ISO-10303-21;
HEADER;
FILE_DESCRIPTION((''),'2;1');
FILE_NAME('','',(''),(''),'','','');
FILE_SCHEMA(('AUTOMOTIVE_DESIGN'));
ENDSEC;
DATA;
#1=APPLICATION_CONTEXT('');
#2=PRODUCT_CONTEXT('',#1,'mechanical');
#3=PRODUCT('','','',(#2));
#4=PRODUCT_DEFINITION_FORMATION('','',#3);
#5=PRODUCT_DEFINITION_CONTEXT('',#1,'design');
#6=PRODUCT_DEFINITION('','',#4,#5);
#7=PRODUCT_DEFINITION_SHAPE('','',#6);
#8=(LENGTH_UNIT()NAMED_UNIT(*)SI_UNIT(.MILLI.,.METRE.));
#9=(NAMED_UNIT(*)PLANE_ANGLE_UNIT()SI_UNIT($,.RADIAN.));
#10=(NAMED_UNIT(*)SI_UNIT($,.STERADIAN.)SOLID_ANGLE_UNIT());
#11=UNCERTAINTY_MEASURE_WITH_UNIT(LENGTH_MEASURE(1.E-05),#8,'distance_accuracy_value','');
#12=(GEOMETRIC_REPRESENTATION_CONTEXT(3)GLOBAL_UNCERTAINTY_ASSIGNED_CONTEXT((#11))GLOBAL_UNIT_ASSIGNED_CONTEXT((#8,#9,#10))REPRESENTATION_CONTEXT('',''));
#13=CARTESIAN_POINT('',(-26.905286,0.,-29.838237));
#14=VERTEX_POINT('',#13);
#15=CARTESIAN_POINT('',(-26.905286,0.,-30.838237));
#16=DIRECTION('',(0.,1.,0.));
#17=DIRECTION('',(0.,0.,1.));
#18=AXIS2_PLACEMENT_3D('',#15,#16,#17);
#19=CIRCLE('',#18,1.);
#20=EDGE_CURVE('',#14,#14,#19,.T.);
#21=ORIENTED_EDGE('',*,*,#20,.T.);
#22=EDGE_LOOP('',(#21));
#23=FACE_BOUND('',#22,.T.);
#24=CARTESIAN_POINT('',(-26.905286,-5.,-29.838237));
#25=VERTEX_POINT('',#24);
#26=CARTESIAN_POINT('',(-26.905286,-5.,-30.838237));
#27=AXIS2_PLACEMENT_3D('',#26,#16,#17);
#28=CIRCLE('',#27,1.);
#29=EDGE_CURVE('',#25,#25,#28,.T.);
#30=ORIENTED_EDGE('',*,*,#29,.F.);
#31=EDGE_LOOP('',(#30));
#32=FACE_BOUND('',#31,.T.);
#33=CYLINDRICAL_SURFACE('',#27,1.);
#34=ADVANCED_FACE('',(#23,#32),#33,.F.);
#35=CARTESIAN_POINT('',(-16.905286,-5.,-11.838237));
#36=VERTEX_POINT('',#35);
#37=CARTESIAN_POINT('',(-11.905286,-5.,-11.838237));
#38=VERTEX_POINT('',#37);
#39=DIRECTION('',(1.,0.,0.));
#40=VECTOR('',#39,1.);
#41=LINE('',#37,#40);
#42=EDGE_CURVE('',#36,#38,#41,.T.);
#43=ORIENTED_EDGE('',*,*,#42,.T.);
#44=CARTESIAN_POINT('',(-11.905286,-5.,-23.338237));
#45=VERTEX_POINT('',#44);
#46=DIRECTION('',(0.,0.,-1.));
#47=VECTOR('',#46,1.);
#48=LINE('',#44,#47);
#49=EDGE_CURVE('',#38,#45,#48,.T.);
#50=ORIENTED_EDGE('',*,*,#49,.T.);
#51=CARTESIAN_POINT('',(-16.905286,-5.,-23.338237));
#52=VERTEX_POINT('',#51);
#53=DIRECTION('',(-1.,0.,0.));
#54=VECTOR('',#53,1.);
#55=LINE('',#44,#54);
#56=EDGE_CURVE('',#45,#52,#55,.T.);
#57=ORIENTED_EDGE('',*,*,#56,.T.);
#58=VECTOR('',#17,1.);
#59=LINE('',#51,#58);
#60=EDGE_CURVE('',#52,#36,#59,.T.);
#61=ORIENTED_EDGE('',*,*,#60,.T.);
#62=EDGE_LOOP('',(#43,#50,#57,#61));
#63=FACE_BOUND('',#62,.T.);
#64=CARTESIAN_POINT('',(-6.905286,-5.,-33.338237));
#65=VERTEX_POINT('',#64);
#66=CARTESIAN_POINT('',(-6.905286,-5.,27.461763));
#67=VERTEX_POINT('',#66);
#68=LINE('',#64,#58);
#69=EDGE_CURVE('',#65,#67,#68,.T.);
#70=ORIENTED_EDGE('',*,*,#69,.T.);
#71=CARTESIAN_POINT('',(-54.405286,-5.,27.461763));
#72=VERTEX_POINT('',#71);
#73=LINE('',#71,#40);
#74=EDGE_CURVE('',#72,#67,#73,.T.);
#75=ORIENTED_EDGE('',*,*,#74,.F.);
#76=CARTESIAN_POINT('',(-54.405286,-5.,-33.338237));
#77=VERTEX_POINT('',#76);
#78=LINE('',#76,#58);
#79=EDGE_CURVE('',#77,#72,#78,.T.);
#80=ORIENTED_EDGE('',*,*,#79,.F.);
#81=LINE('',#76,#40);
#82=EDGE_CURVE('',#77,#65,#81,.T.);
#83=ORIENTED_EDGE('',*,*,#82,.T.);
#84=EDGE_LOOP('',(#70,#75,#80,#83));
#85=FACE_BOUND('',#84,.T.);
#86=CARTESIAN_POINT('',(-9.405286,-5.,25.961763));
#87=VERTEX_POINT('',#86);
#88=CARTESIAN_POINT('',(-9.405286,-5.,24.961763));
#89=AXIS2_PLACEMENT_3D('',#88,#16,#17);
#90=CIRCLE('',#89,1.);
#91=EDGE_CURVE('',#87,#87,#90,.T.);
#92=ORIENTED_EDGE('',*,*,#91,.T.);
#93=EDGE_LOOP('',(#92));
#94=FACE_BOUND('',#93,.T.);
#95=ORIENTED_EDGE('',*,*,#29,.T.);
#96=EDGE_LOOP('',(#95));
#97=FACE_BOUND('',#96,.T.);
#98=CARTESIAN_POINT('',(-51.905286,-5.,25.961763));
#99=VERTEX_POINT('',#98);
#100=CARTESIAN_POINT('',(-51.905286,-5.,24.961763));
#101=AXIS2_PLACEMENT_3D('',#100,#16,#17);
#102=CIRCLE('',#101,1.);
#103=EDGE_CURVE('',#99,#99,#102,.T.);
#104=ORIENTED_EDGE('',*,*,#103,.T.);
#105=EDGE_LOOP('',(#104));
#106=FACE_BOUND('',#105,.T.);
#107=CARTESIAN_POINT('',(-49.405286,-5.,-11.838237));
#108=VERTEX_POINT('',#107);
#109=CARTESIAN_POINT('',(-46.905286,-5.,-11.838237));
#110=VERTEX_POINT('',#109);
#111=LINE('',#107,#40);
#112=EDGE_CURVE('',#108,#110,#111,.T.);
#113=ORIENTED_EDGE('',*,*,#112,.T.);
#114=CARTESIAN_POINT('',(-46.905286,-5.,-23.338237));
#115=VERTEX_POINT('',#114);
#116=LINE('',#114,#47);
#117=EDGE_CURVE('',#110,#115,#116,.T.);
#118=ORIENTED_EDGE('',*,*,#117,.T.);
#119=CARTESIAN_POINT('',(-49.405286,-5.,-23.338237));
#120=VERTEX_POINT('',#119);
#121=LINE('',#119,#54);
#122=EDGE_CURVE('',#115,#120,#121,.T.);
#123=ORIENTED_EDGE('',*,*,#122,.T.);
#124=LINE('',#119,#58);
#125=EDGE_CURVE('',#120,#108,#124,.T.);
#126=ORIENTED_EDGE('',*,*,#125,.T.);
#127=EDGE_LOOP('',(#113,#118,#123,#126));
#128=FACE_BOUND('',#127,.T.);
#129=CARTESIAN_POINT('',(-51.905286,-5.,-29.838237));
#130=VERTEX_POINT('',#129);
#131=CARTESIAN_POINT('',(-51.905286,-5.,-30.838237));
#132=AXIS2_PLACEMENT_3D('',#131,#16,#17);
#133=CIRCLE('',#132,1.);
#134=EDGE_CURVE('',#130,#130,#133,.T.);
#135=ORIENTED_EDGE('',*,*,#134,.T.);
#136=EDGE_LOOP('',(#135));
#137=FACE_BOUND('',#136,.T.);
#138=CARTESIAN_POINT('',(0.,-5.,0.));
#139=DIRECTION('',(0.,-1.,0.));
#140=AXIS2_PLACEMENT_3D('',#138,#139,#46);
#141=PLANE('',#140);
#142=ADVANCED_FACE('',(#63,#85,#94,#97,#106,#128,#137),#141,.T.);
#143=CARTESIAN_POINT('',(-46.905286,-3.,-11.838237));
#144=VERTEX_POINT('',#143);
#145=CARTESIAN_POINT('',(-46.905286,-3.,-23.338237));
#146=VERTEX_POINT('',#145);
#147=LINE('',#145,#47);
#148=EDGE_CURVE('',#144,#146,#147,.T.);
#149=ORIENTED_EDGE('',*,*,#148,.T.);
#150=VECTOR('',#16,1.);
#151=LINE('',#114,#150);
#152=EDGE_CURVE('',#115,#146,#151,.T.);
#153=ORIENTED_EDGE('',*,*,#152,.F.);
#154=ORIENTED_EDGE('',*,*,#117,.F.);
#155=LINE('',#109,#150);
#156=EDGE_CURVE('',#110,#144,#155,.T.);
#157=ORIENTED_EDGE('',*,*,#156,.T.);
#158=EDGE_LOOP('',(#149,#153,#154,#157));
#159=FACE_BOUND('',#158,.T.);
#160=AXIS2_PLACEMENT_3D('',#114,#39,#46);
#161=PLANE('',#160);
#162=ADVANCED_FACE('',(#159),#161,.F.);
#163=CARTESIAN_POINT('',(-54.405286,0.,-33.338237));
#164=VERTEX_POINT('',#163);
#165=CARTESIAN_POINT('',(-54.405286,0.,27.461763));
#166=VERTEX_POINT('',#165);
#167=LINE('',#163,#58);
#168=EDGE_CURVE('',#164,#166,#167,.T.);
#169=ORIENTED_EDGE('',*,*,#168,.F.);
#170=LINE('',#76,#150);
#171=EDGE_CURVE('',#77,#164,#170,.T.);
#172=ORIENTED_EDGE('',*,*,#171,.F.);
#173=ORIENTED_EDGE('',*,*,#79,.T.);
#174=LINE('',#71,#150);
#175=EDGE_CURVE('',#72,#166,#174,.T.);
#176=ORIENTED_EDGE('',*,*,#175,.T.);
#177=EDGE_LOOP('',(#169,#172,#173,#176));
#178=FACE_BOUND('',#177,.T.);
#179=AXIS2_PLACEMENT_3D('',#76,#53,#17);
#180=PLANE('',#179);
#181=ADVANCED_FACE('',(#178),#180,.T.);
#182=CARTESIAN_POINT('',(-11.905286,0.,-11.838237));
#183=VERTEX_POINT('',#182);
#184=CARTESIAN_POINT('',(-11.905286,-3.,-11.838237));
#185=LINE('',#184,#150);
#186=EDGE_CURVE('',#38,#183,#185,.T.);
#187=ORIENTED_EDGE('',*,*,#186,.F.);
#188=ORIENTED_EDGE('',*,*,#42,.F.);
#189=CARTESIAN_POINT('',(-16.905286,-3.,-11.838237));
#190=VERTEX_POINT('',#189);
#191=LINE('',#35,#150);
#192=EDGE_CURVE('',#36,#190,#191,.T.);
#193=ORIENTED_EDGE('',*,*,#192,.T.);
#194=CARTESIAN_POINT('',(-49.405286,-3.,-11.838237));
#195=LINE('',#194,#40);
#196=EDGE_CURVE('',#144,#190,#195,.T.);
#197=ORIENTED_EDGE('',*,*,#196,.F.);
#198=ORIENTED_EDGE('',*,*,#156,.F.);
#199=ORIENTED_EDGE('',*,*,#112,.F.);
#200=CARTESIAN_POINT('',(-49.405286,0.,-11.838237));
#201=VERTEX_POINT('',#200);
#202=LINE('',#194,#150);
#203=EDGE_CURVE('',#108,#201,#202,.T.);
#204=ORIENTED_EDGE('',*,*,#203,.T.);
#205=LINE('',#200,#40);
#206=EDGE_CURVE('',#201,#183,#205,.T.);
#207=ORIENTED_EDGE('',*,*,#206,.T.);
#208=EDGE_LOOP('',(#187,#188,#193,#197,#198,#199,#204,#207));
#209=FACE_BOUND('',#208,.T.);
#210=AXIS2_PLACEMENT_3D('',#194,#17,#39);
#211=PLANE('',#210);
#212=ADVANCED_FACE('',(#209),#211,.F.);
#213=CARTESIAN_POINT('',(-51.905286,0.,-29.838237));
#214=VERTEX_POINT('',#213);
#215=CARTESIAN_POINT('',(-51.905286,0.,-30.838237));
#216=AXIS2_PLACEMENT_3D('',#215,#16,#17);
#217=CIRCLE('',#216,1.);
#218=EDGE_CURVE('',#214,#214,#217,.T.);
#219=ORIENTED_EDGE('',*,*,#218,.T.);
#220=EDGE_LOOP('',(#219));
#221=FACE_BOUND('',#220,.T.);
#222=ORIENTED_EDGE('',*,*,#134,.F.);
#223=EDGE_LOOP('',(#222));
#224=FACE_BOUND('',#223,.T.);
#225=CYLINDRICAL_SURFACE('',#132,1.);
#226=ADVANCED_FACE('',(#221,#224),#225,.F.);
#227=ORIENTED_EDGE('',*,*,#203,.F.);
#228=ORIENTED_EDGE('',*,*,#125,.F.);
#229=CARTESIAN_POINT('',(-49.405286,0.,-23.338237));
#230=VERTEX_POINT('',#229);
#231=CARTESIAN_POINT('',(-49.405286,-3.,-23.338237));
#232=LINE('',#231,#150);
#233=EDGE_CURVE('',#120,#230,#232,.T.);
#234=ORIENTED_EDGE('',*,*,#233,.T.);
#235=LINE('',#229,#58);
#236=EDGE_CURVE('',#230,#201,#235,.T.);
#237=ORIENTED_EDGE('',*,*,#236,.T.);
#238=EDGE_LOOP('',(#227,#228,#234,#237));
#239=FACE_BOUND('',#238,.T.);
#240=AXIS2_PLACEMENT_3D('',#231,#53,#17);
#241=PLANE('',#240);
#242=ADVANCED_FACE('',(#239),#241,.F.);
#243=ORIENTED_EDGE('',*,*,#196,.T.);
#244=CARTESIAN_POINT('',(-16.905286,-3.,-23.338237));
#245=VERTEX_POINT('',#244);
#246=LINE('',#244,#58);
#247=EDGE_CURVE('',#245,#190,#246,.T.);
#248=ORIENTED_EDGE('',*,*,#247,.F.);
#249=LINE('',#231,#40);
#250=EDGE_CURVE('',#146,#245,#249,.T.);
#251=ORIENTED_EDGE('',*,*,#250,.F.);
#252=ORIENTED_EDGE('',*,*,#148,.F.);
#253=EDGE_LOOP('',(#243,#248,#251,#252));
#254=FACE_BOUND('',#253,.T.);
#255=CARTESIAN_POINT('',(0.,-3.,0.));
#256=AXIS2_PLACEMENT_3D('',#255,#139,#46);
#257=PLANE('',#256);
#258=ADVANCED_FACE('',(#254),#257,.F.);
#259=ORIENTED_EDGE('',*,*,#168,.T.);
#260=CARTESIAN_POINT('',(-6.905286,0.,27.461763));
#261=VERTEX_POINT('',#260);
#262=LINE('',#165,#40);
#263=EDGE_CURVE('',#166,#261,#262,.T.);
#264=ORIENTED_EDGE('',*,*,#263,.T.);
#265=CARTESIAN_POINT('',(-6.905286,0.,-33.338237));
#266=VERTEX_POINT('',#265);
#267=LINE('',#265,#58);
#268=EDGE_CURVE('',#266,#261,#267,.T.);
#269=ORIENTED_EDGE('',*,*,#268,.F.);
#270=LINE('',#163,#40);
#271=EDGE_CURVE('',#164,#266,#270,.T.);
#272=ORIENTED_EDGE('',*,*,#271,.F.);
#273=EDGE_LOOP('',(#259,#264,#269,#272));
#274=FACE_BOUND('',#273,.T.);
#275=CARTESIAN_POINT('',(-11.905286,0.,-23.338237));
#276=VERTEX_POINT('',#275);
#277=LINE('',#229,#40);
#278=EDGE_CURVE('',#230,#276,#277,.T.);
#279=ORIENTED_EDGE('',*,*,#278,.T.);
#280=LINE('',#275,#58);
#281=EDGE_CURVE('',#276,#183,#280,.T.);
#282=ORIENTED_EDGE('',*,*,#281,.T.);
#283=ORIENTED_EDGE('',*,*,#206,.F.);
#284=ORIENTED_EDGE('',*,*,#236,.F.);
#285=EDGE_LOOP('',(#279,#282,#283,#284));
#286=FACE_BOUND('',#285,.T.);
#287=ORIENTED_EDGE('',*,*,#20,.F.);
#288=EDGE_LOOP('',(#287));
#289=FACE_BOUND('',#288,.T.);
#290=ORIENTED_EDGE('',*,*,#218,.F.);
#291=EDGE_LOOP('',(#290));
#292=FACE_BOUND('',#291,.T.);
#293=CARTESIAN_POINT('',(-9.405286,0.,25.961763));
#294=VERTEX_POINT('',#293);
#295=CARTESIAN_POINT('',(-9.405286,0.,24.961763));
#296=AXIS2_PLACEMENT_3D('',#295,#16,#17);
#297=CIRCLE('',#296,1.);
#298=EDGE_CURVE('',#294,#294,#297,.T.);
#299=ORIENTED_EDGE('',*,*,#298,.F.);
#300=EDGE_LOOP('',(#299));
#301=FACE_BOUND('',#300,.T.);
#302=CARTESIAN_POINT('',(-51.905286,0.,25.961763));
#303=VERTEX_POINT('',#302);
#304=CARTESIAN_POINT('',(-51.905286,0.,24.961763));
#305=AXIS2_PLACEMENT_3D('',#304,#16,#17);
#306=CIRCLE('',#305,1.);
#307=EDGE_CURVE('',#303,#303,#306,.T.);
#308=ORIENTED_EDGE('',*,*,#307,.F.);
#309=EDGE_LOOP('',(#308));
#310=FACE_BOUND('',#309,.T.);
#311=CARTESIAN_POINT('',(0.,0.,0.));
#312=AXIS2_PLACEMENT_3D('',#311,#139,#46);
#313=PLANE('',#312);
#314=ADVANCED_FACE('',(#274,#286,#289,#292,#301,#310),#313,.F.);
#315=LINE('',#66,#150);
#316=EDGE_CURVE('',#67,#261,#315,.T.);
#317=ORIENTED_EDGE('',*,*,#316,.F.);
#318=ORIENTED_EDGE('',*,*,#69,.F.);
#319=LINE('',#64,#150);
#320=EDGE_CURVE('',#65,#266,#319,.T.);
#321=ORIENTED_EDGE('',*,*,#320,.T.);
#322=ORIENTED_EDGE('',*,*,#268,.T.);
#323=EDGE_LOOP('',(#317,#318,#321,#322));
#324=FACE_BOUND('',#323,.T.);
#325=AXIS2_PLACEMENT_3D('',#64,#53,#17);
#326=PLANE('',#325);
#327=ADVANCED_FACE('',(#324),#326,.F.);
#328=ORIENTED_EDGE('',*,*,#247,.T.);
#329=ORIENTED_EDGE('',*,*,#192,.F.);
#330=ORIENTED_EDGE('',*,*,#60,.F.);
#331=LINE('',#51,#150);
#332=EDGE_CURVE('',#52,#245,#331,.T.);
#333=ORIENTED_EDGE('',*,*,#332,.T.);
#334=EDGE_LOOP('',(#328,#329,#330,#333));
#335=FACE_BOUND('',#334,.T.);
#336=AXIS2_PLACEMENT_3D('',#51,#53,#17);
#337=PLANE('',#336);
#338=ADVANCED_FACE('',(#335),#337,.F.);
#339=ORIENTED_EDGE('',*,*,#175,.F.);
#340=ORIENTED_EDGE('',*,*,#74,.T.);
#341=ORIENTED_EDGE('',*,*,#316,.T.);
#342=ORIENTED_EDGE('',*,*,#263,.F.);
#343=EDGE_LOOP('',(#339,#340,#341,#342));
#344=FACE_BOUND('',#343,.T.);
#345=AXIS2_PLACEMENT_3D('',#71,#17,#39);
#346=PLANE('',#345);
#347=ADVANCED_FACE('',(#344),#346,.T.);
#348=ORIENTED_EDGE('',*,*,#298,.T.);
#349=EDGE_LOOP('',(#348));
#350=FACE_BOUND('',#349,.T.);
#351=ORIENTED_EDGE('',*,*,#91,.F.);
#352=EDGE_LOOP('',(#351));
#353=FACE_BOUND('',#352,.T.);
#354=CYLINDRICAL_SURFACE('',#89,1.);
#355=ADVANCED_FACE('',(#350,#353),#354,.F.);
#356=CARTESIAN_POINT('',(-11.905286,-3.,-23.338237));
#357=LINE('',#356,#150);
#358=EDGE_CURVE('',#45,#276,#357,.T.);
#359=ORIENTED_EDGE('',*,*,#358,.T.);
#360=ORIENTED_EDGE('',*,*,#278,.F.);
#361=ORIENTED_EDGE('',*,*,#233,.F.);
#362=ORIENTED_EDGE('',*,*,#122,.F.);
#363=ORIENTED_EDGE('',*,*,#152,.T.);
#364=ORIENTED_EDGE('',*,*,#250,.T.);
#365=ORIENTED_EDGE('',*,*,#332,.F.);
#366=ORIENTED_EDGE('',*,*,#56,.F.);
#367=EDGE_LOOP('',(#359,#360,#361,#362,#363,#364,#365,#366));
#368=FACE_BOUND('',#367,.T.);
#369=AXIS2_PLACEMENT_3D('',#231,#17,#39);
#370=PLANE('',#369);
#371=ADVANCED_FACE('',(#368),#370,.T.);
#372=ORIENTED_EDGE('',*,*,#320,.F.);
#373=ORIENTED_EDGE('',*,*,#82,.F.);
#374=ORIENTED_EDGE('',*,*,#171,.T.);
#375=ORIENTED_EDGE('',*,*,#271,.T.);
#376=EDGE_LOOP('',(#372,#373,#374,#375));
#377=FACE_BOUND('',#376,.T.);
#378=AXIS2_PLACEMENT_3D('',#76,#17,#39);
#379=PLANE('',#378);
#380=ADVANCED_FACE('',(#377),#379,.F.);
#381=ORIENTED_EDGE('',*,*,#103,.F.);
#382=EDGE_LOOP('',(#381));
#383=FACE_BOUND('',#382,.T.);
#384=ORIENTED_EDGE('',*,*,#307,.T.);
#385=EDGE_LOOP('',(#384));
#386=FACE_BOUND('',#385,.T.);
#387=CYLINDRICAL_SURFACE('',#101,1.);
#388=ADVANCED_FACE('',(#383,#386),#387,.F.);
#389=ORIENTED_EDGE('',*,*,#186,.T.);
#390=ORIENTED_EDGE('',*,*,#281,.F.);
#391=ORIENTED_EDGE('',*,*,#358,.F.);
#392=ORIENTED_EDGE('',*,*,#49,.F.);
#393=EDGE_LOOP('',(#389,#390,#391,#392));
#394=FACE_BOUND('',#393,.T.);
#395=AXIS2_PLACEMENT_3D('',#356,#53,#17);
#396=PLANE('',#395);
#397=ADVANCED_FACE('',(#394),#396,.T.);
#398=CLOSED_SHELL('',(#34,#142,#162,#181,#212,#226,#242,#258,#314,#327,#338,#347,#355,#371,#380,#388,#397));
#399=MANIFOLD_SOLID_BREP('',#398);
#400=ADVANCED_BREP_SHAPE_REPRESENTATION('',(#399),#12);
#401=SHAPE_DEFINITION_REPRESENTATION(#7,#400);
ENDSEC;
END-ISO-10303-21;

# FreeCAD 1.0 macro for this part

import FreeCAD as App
import Part
import Sketcher
Q = App.Units.Quantity

doc = App.newDocument("Part")
body = doc.addObject("PartDesign::Body", "Body")

# Sketch on XZ plane
sketch1 = body.newObject("Sketcher::SketchObject", "Sketch")
sketch1.AttachmentSupport = (doc.getObject("XZ_Plane"), [""])
sketch1.MapMode = "FlatFace"
sketch1.addGeometry(Part.LineSegment(App.Vector(-54, -33, 0), App.Vector(-54, 27, 0)), False)
sketch1.addGeometry(Part.LineSegment(App.Vector(-54, 27, 0), App.Vector(-7, 27, 0)), False)
sketch1.addGeometry(Part.LineSegment(App.Vector(-7, 27, 0), App.Vector(-7, -33, 0)), False)
sketch1.addGeometry(Part.LineSegment(App.Vector(-7, -33, 0), App.Vector(-54, -33, 0)), False)
sketch1.addConstraint(Sketcher.Constraint("Coincident", 0, 2, 1, 1))
sketch1.addConstraint(Sketcher.Constraint("Coincident", 1, 2, 2, 1))
sketch1.addConstraint(Sketcher.Constraint("Coincident", 2, 2, 3, 1))
sketch1.addConstraint(Sketcher.Constraint("Coincident", 3, 2, 0, 1))
sketch1.addConstraint(Sketcher.Constraint("Vertical", 0))
sketch1.addConstraint(Sketcher.Constraint("Horizontal", 1))
sketch1.addConstraint(Sketcher.Constraint("Vertical", 2))
sketch1.addConstraint(Sketcher.Constraint("Horizontal", 3))
sketch1.addConstraint(Sketcher.Constraint("DistanceX", 1, 1, 1, 2, Q("47.5 mm")))
sketch1.addConstraint(Sketcher.Constraint("DistanceY", 0, 1, 0, 2, Q("60.8 mm")))
sketch1.addConstraint(Sketcher.Constraint("DistanceX", 0, 2, -1, 1, Q("54.405286 mm")))
sketch1.addConstraint(Sketcher.Constraint("DistanceY", -1, 1, 0, 2, Q("27.461763 mm")))
pad1 = body.newObject("PartDesign::Pad", "Pad")
pad1.Profile = sketch1
pad1.Length = 5

# Sketch on XZ plane
sketch2 = body.newObject("Sketcher::SketchObject", "Sketch001")
sketch2.AttachmentSupport = (doc.getObject("XZ_Plane"), [""])
sketch2.MapMode = "FlatFace"
sketch2.addGeometry(Part.LineSegment(App.Vector(-49, -23, 0), App.Vector(-49, -12, 0)), False)
sketch2.addGeometry(Part.LineSegment(App.Vector(-49, -12, 0), App.Vector(-12, -12, 0)), False)
sketch2.addGeometry(Part.LineSegment(App.Vector(-12, -12, 0), App.Vector(-12, -23, 0)), False)
sketch2.addGeometry(Part.LineSegment(App.Vector(-12, -23, 0), App.Vector(-49, -23, 0)), False)
sketch2.addConstraint(Sketcher.Constraint("Coincident", 0, 2, 1, 1))
sketch2.addConstraint(Sketcher.Constraint("Coincident", 1, 2, 2, 1))
sketch2.addConstraint(Sketcher.Constraint("Coincident", 2, 2, 3, 1))
sketch2.addConstraint(Sketcher.Constraint("Coincident", 3, 2, 0, 1))
sketch2.addConstraint(Sketcher.Constraint("Vertical", 0))
sketch2.addConstraint(Sketcher.Constraint("Horizontal", 1))
sketch2.addConstraint(Sketcher.Constraint("Vertical", 2))
sketch2.addConstraint(Sketcher.Constraint("Horizontal", 3))
sketch2.addConstraint(Sketcher.Constraint("DistanceX", 1, 1, 1, 2, Q("37.5 mm")))
sketch2.addConstraint(Sketcher.Constraint("DistanceY", 0, 1, 0, 2, Q("11.5 mm")))
sketch2.addConstraint(Sketcher.Constraint("DistanceX", 0, 2, -1, 1, Q("49.405286 mm")))
sketch2.addConstraint(Sketcher.Constraint("DistanceY", 0, 2, -1, 1, Q("11.838237 mm")))
pocket1 = body.newObject("PartDesign::Pocket", "Pocket")
pocket1.Profile = sketch2
pocket1.Length = 3
pocket1.Reversed = True

# Sketch on XZ plane
sketch3 = body.newObject("Sketcher::SketchObject", "Sketch002")
sketch3.AttachmentSupport = (doc.getObject("XZ_Plane"), [""])
sketch3.MapMode = "FlatFace"
sketch3.AttachmentOffset = App.Placement(App.Vector(0, 0, 3), App.Rotation())
sketch3.addGeometry(Part.LineSegment(App.Vector(-49.4, -23.3, 0), App.Vector(-49.4, -11.8, 0)), False)
sketch3.addGeometry(Part.LineSegment(App.Vector(-49.4, -11.8, 0), App.Vector(-46.9, -11.8, 0)), False)
sketch3.addGeometry(Part.LineSegment(App.Vector(-46.9, -11.8, 0), App.Vector(-46.9, -23.3, 0)), False)
sketch3.addGeometry(Part.LineSegment(App.Vector(-46.9, -23.3, 0), App.Vector(-49.4, -23.3, 0)), False)
sketch3.addGeometry(Part.LineSegment(App.Vector(-16.9, -23.3, 0), App.Vector(-16.9, -11.8, 0)), False)
sketch3.addGeometry(Part.LineSegment(App.Vector(-16.9, -11.8, 0), App.Vector(-11.9, -11.8, 0)), False)
sketch3.addGeometry(Part.LineSegment(App.Vector(-11.9, -11.8, 0), App.Vector(-11.9, -23.3, 0)), False)
sketch3.addGeometry(Part.LineSegment(App.Vector(-11.9, -23.3, 0), App.Vector(-16.9, -23.3, 0)), False)
sketch3.addConstraint(Sketcher.Constraint("Coincident", 0, 2, 1, 1))
sketch3.addConstraint(Sketcher.Constraint("Coincident", 1, 2, 2, 1))
sketch3.addConstraint(Sketcher.Constraint("Coincident", 2, 2, 3, 1))
sketch3.addConstraint(Sketcher.Constraint("Coincident", 3, 2, 0, 1))
sketch3.addConstraint(Sketcher.Constraint("Coincident", 4, 2, 5, 1))
sketch3.addConstraint(Sketcher.Constraint("Coincident", 5, 2, 6, 1))
sketch3.addConstraint(Sketcher.Constraint("Coincident", 6, 2, 7, 1))
sketch3.addConstraint(Sketcher.Constraint("Coincident", 7, 2, 4, 1))
sketch3.addConstraint(Sketcher.Constraint("Vertical", 0))
sketch3.addConstraint(Sketcher.Constraint("Horizontal", 1))
sketch3.addConstraint(Sketcher.Constraint("Vertical", 2))
sketch3.addConstraint(Sketcher.Constraint("Horizontal", 3))
sketch3.addConstraint(Sketcher.Constraint("Vertical", 4))
sketch3.addConstraint(Sketcher.Constraint("Horizontal", 5))
sketch3.addConstraint(Sketcher.Constraint("Vertical", 6))
sketch3.addConstraint(Sketcher.Constraint("Horizontal", 7))
sketch3.addConstraint(Sketcher.Constraint("Horizontal", 1, 2, 4, 2))
sketch3.addConstraint(Sketcher.Constraint("Horizontal", 3, 2, 6, 2))
sketch3.addConstraint(Sketcher.Constraint("DistanceX", 5, 1, 5, 2, Q("5 mm")))
sketch3.addConstraint(Sketcher.Constraint("DistanceX", 1, 1, 1, 2, Q("2.5 mm")))
sketch3.addConstraint(Sketcher.Constraint("DistanceY", 0, 1, 0, 2, Q("11.5 mm")))
sketch3.addConstraint(Sketcher.Constraint("DistanceX", 1, 2, 4, 2, Q("30 mm")))
sketch3.addConstraint(Sketcher.Constraint("DistanceX", 0, 2, -1, 1, Q("49.405286 mm")))
sketch3.addConstraint(Sketcher.Constraint("DistanceY", 0, 2, -1, 1, Q("11.838237 mm")))
pocket2 = body.newObject("PartDesign::Pocket", "Pocket001")
pocket2.Profile = sketch3
pocket2.Length = 2
pocket2.Reversed = True

# Sketch on XZ plane
sketch4 = body.newObject("Sketcher::SketchObject", "Sketch003")
sketch4.AttachmentSupport = (doc.getObject("XZ_Plane"), [""])
sketch4.MapMode = "FlatFace"
sketch4.addGeometry(Part.Circle(App.Vector(-9.4, 25, 0), App.Vector(0, 0, 1), 1), False)
sketch4.addGeometry(Part.Circle(App.Vector(-51.9, 25, 0), App.Vector(0, 0, 1), 1), False)
sketch4.addGeometry(Part.Circle(App.Vector(-51.9, -30.8, 0), App.Vector(0, 0, 1), 1), False)
sketch4.addGeometry(Part.Circle(App.Vector(-26.9, -30.8, 0), App.Vector(0, 0, 1), 1), False)
sketch4.addConstraint(Sketcher.Constraint("Equal", 0, 1))
sketch4.addConstraint(Sketcher.Constraint("Equal", 1, 2))
sketch4.addConstraint(Sketcher.Constraint("Equal", 2, 3))
sketch4.addConstraint(Sketcher.Constraint("Horizontal", 0, 3, 1, 3))
sketch4.addConstraint(Sketcher.Constraint("Horizontal", 2, 3, 3, 3))
sketch4.addConstraint(Sketcher.Constraint("Vertical", 1, 3, 2, 3))
sketch4.addConstraint(Sketcher.Constraint("Diameter", 0, Q("2 mm")))
sketch4.addConstraint(Sketcher.Constraint("DistanceX", 2, 3, 3, 3, Q("25 mm")))
sketch4.addConstraint(Sketcher.Constraint("DistanceX", 1, 3, 0, 3, Q("42.5 mm")))
sketch4.addConstraint(Sketcher.Constraint("DistanceY", 2, 3, 1, 3, Q("55.8 mm")))
sketch4.addConstraint(Sketcher.Constraint("DistanceX", 0, 3, -1, 1, Q("9.405286 mm")))
sketch4.addConstraint(Sketcher.Constraint("DistanceY", -1, 1, 0, 3, Q("24.961763 mm")))
pocket3 = body.newObject("PartDesign::Pocket", "Pocket002")
pocket3.Profile = sketch4
pocket3.Length = 5
pocket3.Reversed = True

doc.recompute()
